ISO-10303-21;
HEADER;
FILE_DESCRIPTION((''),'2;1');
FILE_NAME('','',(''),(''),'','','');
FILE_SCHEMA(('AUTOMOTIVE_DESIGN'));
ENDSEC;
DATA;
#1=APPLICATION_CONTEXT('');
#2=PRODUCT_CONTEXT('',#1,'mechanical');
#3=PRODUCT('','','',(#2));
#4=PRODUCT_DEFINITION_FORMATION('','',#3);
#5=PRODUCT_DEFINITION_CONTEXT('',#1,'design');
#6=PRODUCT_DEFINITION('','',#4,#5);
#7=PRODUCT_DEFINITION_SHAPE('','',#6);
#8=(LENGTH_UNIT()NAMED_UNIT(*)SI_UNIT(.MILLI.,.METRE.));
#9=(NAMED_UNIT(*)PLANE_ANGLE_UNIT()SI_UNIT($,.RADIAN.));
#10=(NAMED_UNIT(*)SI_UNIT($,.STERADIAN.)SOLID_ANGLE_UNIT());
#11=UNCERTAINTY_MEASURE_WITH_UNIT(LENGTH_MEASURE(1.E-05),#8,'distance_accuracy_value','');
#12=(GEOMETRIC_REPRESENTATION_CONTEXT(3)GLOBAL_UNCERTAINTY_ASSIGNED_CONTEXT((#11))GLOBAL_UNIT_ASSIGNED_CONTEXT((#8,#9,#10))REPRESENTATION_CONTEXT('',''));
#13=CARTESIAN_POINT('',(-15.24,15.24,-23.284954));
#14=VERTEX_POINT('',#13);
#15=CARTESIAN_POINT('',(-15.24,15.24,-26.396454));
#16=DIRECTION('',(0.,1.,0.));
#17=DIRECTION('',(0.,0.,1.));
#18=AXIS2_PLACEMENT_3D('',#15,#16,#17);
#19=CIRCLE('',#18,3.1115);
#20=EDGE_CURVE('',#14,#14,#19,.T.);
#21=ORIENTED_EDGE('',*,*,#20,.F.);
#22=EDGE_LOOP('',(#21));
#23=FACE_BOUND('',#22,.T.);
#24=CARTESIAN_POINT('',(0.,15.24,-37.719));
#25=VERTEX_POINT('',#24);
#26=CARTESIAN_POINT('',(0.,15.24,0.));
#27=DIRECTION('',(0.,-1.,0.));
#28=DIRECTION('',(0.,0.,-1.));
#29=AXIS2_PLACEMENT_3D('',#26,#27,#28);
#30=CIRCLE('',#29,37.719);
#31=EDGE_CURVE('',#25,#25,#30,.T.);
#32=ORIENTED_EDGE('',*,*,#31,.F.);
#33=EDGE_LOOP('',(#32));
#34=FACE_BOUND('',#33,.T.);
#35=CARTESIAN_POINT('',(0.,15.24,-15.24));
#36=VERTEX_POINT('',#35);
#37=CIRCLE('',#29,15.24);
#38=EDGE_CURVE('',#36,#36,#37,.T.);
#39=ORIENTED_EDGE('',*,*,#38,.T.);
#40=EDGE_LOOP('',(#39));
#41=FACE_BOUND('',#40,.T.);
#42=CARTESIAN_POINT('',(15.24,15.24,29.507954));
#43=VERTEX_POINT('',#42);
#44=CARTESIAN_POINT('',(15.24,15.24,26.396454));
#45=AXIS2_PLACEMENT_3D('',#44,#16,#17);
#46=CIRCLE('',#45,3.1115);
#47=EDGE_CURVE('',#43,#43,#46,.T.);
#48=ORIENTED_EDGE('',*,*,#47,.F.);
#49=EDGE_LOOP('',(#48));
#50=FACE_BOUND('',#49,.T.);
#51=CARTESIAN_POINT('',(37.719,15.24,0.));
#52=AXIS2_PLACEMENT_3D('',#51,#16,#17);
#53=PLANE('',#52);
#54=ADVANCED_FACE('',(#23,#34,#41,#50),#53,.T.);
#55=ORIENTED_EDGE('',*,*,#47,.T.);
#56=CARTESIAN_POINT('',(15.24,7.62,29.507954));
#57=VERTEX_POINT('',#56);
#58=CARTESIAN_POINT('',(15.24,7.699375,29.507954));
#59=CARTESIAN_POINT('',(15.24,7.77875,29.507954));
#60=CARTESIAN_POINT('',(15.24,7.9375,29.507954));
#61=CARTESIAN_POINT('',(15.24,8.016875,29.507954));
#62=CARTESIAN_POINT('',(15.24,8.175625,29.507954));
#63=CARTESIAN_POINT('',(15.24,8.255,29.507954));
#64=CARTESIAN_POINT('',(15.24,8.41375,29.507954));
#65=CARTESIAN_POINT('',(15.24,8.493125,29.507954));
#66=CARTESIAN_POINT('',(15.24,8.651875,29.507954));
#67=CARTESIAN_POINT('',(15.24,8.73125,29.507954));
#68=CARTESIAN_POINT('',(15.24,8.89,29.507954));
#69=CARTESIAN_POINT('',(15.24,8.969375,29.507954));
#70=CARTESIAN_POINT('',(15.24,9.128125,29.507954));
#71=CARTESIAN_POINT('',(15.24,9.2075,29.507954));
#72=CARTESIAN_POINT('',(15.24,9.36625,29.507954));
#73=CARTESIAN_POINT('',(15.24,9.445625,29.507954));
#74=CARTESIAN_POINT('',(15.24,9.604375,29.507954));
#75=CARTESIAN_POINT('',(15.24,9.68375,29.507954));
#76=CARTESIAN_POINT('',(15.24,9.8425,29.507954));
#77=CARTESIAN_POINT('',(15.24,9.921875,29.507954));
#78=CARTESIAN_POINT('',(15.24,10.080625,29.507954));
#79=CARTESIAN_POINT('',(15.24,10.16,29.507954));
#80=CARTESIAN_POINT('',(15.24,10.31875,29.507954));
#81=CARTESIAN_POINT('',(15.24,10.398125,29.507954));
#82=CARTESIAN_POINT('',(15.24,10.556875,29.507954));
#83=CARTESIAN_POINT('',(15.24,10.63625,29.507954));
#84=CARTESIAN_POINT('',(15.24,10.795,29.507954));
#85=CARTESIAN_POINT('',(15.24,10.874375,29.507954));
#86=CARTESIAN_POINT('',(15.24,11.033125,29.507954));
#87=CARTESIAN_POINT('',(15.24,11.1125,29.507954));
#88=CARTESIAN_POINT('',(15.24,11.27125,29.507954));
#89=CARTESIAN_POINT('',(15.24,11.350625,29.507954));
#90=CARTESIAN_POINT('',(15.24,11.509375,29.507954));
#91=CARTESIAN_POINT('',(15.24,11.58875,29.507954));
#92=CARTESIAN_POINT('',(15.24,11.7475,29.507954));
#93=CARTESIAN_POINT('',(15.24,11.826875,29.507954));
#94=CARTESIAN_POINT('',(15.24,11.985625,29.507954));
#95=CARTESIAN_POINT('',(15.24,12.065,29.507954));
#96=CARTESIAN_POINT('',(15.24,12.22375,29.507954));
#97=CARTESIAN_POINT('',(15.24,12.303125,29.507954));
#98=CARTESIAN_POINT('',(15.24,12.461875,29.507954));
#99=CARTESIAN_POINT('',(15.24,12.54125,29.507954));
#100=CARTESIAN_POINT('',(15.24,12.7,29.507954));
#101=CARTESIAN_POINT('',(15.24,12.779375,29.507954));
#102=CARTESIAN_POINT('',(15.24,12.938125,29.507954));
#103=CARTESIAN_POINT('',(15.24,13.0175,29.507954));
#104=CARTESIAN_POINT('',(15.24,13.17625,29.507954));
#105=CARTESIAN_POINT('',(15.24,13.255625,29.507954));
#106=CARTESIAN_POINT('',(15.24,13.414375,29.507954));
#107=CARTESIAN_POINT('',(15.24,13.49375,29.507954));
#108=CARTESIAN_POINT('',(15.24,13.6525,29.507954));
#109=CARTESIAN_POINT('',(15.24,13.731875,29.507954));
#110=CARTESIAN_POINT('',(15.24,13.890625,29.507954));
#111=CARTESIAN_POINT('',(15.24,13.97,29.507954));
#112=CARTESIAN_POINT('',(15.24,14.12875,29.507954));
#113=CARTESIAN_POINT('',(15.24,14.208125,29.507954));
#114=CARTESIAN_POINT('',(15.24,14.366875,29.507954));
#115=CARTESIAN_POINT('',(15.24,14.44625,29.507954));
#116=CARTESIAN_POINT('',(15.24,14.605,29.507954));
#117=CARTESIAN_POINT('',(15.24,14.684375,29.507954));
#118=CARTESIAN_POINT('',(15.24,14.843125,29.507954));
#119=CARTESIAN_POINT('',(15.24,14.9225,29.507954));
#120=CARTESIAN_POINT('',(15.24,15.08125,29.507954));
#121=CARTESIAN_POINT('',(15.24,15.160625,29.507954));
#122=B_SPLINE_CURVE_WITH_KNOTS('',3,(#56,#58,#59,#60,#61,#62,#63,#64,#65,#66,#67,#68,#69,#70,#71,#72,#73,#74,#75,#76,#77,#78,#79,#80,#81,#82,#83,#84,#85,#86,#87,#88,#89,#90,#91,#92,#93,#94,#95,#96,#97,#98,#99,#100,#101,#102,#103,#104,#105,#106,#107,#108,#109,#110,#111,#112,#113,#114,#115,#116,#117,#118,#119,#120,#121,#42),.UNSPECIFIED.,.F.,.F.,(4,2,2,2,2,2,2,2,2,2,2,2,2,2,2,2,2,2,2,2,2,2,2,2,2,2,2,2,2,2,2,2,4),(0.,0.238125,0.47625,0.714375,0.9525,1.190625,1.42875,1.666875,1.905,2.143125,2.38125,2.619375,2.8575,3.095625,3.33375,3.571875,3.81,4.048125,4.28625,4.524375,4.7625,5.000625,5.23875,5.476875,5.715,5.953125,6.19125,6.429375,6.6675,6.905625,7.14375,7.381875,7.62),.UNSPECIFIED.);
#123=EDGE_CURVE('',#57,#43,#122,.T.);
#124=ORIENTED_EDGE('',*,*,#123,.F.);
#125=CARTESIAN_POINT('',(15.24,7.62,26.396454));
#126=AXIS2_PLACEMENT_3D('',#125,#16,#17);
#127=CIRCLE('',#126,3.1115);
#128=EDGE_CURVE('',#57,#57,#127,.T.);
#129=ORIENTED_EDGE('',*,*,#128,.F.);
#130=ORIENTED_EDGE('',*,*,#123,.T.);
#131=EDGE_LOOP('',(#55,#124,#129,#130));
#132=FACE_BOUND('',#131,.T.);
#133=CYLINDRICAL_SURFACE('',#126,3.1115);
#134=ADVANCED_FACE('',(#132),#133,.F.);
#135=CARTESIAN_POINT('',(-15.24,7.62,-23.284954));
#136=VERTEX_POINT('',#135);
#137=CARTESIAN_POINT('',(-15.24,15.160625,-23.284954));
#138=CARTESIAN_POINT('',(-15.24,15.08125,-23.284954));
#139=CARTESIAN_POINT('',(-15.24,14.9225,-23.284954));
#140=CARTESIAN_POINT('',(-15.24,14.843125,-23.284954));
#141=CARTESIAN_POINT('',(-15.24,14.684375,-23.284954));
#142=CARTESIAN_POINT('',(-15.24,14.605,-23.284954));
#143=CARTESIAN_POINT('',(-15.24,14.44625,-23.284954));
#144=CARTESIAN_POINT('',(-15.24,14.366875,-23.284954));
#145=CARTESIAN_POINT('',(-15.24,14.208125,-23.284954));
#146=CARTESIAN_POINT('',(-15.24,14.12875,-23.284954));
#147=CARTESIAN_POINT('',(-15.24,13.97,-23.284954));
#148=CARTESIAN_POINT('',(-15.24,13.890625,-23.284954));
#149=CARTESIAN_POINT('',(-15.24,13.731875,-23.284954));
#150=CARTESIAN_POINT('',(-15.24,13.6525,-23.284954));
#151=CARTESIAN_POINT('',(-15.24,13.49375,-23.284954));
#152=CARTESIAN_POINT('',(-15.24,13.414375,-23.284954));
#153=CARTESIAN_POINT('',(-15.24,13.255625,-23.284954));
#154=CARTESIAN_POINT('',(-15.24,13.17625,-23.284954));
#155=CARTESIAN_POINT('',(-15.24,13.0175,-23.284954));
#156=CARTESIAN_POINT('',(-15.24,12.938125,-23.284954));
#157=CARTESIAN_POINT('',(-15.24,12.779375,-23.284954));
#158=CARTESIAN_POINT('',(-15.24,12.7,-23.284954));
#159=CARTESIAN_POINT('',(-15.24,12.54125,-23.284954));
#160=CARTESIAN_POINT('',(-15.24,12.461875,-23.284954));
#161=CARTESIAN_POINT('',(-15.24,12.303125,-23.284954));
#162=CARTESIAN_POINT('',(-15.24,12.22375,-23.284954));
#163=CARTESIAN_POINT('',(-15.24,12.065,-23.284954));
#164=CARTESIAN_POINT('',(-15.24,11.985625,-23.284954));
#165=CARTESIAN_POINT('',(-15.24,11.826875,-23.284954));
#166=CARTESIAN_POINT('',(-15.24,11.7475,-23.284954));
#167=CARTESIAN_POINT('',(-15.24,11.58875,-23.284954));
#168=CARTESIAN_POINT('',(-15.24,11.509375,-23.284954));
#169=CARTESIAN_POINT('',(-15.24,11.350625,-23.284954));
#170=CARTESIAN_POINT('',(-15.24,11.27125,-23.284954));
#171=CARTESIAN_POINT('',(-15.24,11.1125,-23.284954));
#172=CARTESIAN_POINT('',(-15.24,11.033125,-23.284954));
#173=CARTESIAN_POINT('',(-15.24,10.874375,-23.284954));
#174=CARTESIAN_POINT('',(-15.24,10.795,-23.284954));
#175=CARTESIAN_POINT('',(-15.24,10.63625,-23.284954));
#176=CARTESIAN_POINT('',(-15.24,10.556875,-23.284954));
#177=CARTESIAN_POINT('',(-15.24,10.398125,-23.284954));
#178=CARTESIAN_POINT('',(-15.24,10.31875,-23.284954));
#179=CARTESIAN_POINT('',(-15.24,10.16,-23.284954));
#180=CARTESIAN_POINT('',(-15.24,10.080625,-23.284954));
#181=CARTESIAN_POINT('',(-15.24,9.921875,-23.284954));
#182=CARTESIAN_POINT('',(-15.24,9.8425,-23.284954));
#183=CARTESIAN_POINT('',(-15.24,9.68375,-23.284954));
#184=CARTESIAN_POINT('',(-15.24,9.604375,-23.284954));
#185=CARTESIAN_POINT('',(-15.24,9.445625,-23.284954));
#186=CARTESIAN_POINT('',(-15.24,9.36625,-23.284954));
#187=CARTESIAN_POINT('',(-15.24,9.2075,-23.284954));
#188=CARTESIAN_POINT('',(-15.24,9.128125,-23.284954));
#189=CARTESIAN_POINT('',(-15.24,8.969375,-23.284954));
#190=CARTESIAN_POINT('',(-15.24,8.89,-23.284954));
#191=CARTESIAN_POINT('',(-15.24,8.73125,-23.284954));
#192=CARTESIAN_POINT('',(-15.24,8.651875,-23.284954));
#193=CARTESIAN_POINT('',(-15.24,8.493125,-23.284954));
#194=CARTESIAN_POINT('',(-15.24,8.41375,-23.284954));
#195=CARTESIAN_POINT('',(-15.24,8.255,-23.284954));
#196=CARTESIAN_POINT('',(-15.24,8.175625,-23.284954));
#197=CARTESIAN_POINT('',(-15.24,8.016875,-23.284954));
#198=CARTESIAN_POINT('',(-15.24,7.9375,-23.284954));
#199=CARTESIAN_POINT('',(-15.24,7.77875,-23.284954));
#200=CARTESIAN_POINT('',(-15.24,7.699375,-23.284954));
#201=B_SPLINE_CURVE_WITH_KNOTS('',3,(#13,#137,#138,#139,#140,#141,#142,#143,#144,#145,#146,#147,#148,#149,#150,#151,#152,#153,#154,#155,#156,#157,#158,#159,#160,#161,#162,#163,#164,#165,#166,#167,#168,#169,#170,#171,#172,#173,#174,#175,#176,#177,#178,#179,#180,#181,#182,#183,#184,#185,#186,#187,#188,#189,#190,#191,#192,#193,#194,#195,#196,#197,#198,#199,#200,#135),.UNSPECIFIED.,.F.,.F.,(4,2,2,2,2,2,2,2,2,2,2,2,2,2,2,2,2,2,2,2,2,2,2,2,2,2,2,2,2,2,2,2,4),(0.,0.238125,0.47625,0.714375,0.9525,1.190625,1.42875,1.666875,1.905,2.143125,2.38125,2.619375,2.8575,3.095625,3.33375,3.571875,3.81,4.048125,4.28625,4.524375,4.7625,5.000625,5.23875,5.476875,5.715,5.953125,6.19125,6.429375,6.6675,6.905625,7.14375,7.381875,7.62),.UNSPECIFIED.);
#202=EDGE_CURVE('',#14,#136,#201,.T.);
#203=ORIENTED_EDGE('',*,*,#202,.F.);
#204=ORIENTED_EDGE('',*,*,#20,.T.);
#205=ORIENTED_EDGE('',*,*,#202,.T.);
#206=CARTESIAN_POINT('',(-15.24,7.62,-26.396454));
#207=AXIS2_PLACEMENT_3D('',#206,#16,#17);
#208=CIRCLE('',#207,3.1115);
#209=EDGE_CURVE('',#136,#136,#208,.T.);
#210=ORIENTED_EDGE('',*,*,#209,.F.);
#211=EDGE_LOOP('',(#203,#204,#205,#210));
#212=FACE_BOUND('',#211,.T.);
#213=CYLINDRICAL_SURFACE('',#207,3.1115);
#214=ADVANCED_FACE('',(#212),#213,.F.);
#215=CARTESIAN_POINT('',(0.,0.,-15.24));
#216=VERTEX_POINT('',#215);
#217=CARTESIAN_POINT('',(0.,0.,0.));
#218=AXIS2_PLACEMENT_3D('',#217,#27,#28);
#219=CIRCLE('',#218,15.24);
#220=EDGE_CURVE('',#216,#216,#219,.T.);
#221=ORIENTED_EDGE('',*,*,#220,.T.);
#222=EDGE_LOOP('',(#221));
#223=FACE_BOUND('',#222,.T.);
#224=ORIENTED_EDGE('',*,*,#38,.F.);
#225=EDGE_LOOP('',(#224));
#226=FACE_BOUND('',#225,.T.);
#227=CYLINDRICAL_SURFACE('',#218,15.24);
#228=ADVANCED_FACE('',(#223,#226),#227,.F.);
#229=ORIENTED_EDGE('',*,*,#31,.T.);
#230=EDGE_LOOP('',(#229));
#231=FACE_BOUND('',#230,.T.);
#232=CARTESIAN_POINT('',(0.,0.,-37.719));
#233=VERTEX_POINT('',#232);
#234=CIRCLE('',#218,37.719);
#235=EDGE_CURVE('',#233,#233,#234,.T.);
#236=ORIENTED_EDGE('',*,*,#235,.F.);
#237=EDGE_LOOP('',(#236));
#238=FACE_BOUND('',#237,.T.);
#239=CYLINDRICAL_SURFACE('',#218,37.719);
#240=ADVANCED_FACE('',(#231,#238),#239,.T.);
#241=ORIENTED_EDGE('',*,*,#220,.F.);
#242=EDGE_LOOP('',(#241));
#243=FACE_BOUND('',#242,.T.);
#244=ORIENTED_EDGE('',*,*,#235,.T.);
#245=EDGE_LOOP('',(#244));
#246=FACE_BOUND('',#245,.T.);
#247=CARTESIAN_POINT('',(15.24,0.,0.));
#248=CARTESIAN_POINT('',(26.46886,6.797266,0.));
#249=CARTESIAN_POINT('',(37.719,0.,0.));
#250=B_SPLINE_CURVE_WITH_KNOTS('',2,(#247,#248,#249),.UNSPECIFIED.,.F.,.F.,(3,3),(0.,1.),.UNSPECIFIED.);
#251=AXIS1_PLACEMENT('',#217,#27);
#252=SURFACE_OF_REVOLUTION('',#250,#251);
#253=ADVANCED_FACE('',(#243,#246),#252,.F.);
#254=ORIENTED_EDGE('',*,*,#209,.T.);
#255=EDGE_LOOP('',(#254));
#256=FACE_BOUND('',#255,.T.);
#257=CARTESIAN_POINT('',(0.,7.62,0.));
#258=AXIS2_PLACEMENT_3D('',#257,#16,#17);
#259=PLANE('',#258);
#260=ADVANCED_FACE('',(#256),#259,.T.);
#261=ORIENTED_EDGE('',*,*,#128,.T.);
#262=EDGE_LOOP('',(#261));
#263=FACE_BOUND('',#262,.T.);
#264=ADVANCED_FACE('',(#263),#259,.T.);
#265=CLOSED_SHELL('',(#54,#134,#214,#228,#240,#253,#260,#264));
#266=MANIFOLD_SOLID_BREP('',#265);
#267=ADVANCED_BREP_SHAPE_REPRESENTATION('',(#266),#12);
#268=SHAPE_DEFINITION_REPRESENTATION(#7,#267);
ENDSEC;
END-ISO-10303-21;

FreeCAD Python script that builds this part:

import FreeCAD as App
import Part
import Sketcher
from FreeCAD import Vector
Q = App.Units.Quantity

doc = App.newDocument("Part")
body = doc.addObject("PartDesign::Body", "Body")

# Sketch on XY plane
sketch1 = body.newObject("Sketcher::SketchObject", "Sketch")
sketch1.AttachmentSupport = (doc.getObject("XY_Plane"), [""])
sketch1.MapMode = "FlatFace"
sketch1.addGeometry([
    Part.LineSegment(Vector(37.719, 0, 0), Vector(37.719, 15.24, 0)),
    Part.LineSegment(Vector(37.719, 15.24, 0), Vector(15.24, 15.24, 0)),
    Part.LineSegment(Vector(15.24, 15.24, 0), Vector(15.24, 0, 0)),
    Part.BSplineCurve([Vector(15.24, 0, 0), Vector(26.46886, 6.797266, 0), Vector(37.719, 0, 0)], [3, 3], [0, 1], False, 2, [1, 1, 1], False),
], False)
sketch1.addConstraint([
    Sketcher.Constraint("Block", 3),
    Sketcher.Constraint("Coincident", 0, 2, 1, 1),
    Sketcher.Constraint("Coincident", 1, 2, 2, 1),
    Sketcher.Constraint("Coincident", 2, 2, 3, 1),
    Sketcher.Constraint("Coincident", 3, 2, 0, 1),
    Sketcher.Constraint("Vertical", 0),
    Sketcher.Constraint("Horizontal", 1),
    Sketcher.Constraint("Vertical", 2),
    Sketcher.Constraint("DistanceY", 0, 1, 0, 2, Q("0.6 in")),
])
revolution = body.newObject("PartDesign::Revolution", "Revolution")
revolution.Profile = sketch1
revolution.ReferenceAxis = (sketch1, ["V_Axis"])
revolution.Angle = 360

# Sketch on XZ plane
sketch2 = body.newObject("Sketcher::SketchObject", "Sketch001")
sketch2.AttachmentSupport = (doc.getObject("XZ_Plane"), [""])
sketch2.MapMode = "FlatFace"
sketch2.AttachmentOffset = App.Placement(Vector(0, 0, -0.6 * 25.4), App.Rotation())
sketch2.addGeometry([
    Part.Circle(Vector(15.24, 26.396454, 0), Vector(0, 0, 1), 3.1115),
    Part.Circle(Vector(-15.24, -26.396454, 0), Vector(0, 0, 1), 3.1115),
], False)
sketch2.addConstraint([
    Sketcher.Constraint("Equal", 0, 1),
    Sketcher.Constraint("Symmetric", 0, 3, 1, 3, -1, 1),
    Sketcher.Constraint("Diameter", 0, Q("0.245 in")),
    Sketcher.Constraint("DistanceX", -1, 1, 0, 3, Q("0.6 in")),
    Sketcher.Constraint("DistanceY", 1, 3, 0, 3, 52.792909),
])
pocket1 = body.newObject("PartDesign::Pocket", "Pocket")
pocket1.Profile = sketch2
pocket1.Length = Q("0.3 in")
pocket1.Reversed = True

doc.recompute()
